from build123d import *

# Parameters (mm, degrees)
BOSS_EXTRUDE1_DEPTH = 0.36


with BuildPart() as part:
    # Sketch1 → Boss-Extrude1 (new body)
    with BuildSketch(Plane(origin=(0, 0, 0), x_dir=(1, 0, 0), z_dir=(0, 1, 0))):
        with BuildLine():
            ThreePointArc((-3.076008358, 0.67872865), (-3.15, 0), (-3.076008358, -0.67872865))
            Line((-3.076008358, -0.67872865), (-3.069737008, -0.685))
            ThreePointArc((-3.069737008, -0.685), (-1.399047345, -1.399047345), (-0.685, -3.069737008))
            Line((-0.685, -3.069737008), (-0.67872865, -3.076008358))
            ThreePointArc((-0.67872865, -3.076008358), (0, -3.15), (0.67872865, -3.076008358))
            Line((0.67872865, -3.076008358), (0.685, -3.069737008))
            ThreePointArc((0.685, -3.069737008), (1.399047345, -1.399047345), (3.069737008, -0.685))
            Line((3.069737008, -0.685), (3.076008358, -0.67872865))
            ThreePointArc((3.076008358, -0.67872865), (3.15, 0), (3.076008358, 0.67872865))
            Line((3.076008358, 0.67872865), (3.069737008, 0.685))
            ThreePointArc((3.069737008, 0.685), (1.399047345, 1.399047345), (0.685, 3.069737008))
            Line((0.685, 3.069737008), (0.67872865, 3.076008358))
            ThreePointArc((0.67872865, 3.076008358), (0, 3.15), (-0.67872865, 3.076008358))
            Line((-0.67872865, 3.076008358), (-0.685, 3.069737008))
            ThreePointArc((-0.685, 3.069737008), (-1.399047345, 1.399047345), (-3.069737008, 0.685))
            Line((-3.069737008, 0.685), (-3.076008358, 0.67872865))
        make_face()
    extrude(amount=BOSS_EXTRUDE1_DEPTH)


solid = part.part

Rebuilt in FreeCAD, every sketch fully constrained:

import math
import FreeCAD as App
import Part
import Sketcher
Q = App.Units.Quantity

doc = App.newDocument("Part")
params = doc.addObject("Spreadsheet::Sheet", "Params")
for row, (alias, value) in enumerate([
    ("sketch1_radius", "3.15 mm"),
    ("sketch1_radius2", "2.44 mm"),
    ("pad1_length", "0.36 mm"),
], start=1):
    params.set(f"A{row}", alias)
    params.set(f"B{row}", "=" + value)
    params.setAlias(f"B{row}", alias)

body = doc.addObject("PartDesign::Body", "Body")

# Sketch on XZ plane
sketch1 = doc.addObject("Sketcher::SketchObject", "Sketch")
body.addObject(sketch1)
sketch1.AttachmentSupport = (doc.XZ_Plane, [""])
sketch1.MapMode = "FlatFace"
sketch1.addGeometry([
    Part.ArcOfCircle(Part.Circle(App.Vector(0, 0, 0), App.Vector(0, 0, 1), 3.15), math.radians(167.556932), math.radians(192.443068)),  # 0
    Part.LineSegment(App.Vector(-3.076008, 0.678729, 0), App.Vector(-3.069737, 0.685, 0)),  # 1
    Part.ArcOfCircle(Part.Circle(App.Vector(-3.124388, 3.124388, 0), App.Vector(0, 0, 1), 2.44), math.radians(-88.716587), math.radians(-1.283413)),  # 2
    Part.LineSegment(App.Vector(-0.685, 3.069737, 0), App.Vector(-0.678729, 3.076008, 0)),  # 3
    Part.ArcOfCircle(Part.Circle(App.Vector(0, 0, 0), App.Vector(0, 0, 1), 3.15), math.radians(77.556932), math.radians(102.443068)),  # 4
    Part.LineSegment(App.Vector(0.678729, 3.076008, 0), App.Vector(0.685, 3.069737, 0)),  # 5
    Part.ArcOfCircle(Part.Circle(App.Vector(3.124388, 3.124388, 0), App.Vector(0, 0, 1), 2.44), math.radians(-178.716587), math.radians(-91.283413)),  # 6
    Part.LineSegment(App.Vector(3.069737, 0.685, 0), App.Vector(3.076008, 0.678729, 0)),  # 7
    Part.ArcOfCircle(Part.Circle(App.Vector(0, 0, 0), App.Vector(0, 0, 1), 3.15), math.radians(-12.443068), math.radians(12.443068)),  # 8
    Part.LineSegment(App.Vector(3.076008, -0.678729, 0), App.Vector(3.069737, -0.685, 0)),  # 9
    Part.ArcOfCircle(Part.Circle(App.Vector(3.124388, -3.124388, 0), App.Vector(0, 0, 1), 2.44), math.radians(91.283413), math.radians(178.716587)),  # 10
    Part.LineSegment(App.Vector(0.685, -3.069737, 0), App.Vector(0.678729, -3.076008, 0)),  # 11
    Part.ArcOfCircle(Part.Circle(App.Vector(0, 0, 0), App.Vector(0, 0, 1), 3.15), math.radians(-102.443068), math.radians(-77.556932)),  # 12
    Part.LineSegment(App.Vector(-0.678729, -3.076008, 0), App.Vector(-0.685, -3.069737, 0)),  # 13
    Part.ArcOfCircle(Part.Circle(App.Vector(-3.124388, -3.124388, 0), App.Vector(0, 0, 1), 2.44), math.radians(1.283413), math.radians(88.716587)),  # 14
    Part.LineSegment(App.Vector(-3.069737, -0.685, 0), App.Vector(-3.076008, -0.678729, 0)),  # 15
], False)
sketch1.addConstraint([
    Sketcher.Constraint("Coincident", 0, 1, 1, 1),
    Sketcher.Constraint("Coincident", 1, 2, 2, 1),
    Sketcher.Constraint("Coincident", 2, 2, 3, 1),
    Sketcher.Constraint("Coincident", 3, 2, 4, 2),
    Sketcher.Constraint("Coincident", 4, 1, 5, 1),
    Sketcher.Constraint("Coincident", 5, 2, 6, 1),
    Sketcher.Constraint("Coincident", 6, 2, 7, 1),
    Sketcher.Constraint("Coincident", 7, 2, 8, 2),
    Sketcher.Constraint("Coincident", 8, 1, 9, 1),
    Sketcher.Constraint("Coincident", 9, 2, 10, 1),
    Sketcher.Constraint("Coincident", 10, 2, 11, 1),
    Sketcher.Constraint("Coincident", 11, 2, 12, 2),
    Sketcher.Constraint("Coincident", 12, 1, 13, 1),
    Sketcher.Constraint("Coincident", 13, 2, 14, 1),
    Sketcher.Constraint("Coincident", 14, 2, 15, 1),
    Sketcher.Constraint("Coincident", 15, 2, 0, 2),
    Sketcher.Constraint("Coincident", 0, 3, -1, 1),
    Sketcher.Constraint("Coincident", 4, 3, -1, 1),
    Sketcher.Constraint("Coincident", 8, 3, -1, 1),
    Sketcher.Constraint("Coincident", 12, 3, -1, 1),
    Sketcher.Constraint("Equal", 0, 4),
    Sketcher.Constraint("Equal", 2, 6),
    Sketcher.Constraint("Equal", 4, 8),
    Sketcher.Constraint("Equal", 6, 10),
    Sketcher.Constraint("Equal", 8, 12),
    Sketcher.Constraint("Equal", 10, 14),
    Sketcher.Constraint("Symmetric", 2, 3, 10, 3, -1, 1),
    Sketcher.Constraint("Symmetric", 6, 3, 14, 3, -1, 1),
    Sketcher.Constraint("Symmetric", 2, 3, 6, 3, -2),
    Sketcher.Constraint("Parallel", 1, 3),
    Sketcher.Constraint("Perpendicular", 3, 5),
    Sketcher.Constraint("Parallel", 5, 7),
    Sketcher.Constraint("Perpendicular", 7, 9),
    Sketcher.Constraint("Parallel", 9, 11),
    Sketcher.Constraint("Perpendicular", 11, 13),
    Sketcher.Constraint("Parallel", 13, 15),
    Sketcher.Constraint("Horizontal", 3, 2, 4, 1),
    Sketcher.Constraint("Horizontal", 2, 2, 5, 2),
    Sketcher.Constraint("Horizontal", 1, 2, 6, 2),
    Sketcher.Constraint("Horizontal", 11, 2, 12, 1),
    Sketcher.Constraint("Horizontal", 9, 2, 14, 2),
    Sketcher.Constraint("Vertical", 7, 2, 8, 1),
    Sketcher.Constraint("Vertical", 5, 2, 10, 2),
    Sketcher.Constraint("Equal", 1, 3),
    Sketcher.Constraint("Radius", 0, Q("3.15 mm")),
    Sketcher.Constraint("Radius", 2, Q("2.44 mm")),
    Sketcher.Constraint("DistanceX", 2, 2, 5, 2, Q("1.37 mm")),
    Sketcher.Constraint("DistanceY", 9, 2, 6, 2, Q("1.37 mm")),
    Sketcher.Constraint("Distance", 1, Q("0.008869 mm")),
])
sketch1.setExpression("Constraints[44]", "Params.sketch1_radius")
sketch1.setExpression("Constraints[45]", "Params.sketch1_radius2")
pad1 = doc.addObject("PartDesign::Pad", "Pad")
body.addObject(pad1)
pad1.Profile = sketch1
pad1.setExpression("Length", "Params.pad1_length")
pad1.Reversed = True

doc.recompute()
